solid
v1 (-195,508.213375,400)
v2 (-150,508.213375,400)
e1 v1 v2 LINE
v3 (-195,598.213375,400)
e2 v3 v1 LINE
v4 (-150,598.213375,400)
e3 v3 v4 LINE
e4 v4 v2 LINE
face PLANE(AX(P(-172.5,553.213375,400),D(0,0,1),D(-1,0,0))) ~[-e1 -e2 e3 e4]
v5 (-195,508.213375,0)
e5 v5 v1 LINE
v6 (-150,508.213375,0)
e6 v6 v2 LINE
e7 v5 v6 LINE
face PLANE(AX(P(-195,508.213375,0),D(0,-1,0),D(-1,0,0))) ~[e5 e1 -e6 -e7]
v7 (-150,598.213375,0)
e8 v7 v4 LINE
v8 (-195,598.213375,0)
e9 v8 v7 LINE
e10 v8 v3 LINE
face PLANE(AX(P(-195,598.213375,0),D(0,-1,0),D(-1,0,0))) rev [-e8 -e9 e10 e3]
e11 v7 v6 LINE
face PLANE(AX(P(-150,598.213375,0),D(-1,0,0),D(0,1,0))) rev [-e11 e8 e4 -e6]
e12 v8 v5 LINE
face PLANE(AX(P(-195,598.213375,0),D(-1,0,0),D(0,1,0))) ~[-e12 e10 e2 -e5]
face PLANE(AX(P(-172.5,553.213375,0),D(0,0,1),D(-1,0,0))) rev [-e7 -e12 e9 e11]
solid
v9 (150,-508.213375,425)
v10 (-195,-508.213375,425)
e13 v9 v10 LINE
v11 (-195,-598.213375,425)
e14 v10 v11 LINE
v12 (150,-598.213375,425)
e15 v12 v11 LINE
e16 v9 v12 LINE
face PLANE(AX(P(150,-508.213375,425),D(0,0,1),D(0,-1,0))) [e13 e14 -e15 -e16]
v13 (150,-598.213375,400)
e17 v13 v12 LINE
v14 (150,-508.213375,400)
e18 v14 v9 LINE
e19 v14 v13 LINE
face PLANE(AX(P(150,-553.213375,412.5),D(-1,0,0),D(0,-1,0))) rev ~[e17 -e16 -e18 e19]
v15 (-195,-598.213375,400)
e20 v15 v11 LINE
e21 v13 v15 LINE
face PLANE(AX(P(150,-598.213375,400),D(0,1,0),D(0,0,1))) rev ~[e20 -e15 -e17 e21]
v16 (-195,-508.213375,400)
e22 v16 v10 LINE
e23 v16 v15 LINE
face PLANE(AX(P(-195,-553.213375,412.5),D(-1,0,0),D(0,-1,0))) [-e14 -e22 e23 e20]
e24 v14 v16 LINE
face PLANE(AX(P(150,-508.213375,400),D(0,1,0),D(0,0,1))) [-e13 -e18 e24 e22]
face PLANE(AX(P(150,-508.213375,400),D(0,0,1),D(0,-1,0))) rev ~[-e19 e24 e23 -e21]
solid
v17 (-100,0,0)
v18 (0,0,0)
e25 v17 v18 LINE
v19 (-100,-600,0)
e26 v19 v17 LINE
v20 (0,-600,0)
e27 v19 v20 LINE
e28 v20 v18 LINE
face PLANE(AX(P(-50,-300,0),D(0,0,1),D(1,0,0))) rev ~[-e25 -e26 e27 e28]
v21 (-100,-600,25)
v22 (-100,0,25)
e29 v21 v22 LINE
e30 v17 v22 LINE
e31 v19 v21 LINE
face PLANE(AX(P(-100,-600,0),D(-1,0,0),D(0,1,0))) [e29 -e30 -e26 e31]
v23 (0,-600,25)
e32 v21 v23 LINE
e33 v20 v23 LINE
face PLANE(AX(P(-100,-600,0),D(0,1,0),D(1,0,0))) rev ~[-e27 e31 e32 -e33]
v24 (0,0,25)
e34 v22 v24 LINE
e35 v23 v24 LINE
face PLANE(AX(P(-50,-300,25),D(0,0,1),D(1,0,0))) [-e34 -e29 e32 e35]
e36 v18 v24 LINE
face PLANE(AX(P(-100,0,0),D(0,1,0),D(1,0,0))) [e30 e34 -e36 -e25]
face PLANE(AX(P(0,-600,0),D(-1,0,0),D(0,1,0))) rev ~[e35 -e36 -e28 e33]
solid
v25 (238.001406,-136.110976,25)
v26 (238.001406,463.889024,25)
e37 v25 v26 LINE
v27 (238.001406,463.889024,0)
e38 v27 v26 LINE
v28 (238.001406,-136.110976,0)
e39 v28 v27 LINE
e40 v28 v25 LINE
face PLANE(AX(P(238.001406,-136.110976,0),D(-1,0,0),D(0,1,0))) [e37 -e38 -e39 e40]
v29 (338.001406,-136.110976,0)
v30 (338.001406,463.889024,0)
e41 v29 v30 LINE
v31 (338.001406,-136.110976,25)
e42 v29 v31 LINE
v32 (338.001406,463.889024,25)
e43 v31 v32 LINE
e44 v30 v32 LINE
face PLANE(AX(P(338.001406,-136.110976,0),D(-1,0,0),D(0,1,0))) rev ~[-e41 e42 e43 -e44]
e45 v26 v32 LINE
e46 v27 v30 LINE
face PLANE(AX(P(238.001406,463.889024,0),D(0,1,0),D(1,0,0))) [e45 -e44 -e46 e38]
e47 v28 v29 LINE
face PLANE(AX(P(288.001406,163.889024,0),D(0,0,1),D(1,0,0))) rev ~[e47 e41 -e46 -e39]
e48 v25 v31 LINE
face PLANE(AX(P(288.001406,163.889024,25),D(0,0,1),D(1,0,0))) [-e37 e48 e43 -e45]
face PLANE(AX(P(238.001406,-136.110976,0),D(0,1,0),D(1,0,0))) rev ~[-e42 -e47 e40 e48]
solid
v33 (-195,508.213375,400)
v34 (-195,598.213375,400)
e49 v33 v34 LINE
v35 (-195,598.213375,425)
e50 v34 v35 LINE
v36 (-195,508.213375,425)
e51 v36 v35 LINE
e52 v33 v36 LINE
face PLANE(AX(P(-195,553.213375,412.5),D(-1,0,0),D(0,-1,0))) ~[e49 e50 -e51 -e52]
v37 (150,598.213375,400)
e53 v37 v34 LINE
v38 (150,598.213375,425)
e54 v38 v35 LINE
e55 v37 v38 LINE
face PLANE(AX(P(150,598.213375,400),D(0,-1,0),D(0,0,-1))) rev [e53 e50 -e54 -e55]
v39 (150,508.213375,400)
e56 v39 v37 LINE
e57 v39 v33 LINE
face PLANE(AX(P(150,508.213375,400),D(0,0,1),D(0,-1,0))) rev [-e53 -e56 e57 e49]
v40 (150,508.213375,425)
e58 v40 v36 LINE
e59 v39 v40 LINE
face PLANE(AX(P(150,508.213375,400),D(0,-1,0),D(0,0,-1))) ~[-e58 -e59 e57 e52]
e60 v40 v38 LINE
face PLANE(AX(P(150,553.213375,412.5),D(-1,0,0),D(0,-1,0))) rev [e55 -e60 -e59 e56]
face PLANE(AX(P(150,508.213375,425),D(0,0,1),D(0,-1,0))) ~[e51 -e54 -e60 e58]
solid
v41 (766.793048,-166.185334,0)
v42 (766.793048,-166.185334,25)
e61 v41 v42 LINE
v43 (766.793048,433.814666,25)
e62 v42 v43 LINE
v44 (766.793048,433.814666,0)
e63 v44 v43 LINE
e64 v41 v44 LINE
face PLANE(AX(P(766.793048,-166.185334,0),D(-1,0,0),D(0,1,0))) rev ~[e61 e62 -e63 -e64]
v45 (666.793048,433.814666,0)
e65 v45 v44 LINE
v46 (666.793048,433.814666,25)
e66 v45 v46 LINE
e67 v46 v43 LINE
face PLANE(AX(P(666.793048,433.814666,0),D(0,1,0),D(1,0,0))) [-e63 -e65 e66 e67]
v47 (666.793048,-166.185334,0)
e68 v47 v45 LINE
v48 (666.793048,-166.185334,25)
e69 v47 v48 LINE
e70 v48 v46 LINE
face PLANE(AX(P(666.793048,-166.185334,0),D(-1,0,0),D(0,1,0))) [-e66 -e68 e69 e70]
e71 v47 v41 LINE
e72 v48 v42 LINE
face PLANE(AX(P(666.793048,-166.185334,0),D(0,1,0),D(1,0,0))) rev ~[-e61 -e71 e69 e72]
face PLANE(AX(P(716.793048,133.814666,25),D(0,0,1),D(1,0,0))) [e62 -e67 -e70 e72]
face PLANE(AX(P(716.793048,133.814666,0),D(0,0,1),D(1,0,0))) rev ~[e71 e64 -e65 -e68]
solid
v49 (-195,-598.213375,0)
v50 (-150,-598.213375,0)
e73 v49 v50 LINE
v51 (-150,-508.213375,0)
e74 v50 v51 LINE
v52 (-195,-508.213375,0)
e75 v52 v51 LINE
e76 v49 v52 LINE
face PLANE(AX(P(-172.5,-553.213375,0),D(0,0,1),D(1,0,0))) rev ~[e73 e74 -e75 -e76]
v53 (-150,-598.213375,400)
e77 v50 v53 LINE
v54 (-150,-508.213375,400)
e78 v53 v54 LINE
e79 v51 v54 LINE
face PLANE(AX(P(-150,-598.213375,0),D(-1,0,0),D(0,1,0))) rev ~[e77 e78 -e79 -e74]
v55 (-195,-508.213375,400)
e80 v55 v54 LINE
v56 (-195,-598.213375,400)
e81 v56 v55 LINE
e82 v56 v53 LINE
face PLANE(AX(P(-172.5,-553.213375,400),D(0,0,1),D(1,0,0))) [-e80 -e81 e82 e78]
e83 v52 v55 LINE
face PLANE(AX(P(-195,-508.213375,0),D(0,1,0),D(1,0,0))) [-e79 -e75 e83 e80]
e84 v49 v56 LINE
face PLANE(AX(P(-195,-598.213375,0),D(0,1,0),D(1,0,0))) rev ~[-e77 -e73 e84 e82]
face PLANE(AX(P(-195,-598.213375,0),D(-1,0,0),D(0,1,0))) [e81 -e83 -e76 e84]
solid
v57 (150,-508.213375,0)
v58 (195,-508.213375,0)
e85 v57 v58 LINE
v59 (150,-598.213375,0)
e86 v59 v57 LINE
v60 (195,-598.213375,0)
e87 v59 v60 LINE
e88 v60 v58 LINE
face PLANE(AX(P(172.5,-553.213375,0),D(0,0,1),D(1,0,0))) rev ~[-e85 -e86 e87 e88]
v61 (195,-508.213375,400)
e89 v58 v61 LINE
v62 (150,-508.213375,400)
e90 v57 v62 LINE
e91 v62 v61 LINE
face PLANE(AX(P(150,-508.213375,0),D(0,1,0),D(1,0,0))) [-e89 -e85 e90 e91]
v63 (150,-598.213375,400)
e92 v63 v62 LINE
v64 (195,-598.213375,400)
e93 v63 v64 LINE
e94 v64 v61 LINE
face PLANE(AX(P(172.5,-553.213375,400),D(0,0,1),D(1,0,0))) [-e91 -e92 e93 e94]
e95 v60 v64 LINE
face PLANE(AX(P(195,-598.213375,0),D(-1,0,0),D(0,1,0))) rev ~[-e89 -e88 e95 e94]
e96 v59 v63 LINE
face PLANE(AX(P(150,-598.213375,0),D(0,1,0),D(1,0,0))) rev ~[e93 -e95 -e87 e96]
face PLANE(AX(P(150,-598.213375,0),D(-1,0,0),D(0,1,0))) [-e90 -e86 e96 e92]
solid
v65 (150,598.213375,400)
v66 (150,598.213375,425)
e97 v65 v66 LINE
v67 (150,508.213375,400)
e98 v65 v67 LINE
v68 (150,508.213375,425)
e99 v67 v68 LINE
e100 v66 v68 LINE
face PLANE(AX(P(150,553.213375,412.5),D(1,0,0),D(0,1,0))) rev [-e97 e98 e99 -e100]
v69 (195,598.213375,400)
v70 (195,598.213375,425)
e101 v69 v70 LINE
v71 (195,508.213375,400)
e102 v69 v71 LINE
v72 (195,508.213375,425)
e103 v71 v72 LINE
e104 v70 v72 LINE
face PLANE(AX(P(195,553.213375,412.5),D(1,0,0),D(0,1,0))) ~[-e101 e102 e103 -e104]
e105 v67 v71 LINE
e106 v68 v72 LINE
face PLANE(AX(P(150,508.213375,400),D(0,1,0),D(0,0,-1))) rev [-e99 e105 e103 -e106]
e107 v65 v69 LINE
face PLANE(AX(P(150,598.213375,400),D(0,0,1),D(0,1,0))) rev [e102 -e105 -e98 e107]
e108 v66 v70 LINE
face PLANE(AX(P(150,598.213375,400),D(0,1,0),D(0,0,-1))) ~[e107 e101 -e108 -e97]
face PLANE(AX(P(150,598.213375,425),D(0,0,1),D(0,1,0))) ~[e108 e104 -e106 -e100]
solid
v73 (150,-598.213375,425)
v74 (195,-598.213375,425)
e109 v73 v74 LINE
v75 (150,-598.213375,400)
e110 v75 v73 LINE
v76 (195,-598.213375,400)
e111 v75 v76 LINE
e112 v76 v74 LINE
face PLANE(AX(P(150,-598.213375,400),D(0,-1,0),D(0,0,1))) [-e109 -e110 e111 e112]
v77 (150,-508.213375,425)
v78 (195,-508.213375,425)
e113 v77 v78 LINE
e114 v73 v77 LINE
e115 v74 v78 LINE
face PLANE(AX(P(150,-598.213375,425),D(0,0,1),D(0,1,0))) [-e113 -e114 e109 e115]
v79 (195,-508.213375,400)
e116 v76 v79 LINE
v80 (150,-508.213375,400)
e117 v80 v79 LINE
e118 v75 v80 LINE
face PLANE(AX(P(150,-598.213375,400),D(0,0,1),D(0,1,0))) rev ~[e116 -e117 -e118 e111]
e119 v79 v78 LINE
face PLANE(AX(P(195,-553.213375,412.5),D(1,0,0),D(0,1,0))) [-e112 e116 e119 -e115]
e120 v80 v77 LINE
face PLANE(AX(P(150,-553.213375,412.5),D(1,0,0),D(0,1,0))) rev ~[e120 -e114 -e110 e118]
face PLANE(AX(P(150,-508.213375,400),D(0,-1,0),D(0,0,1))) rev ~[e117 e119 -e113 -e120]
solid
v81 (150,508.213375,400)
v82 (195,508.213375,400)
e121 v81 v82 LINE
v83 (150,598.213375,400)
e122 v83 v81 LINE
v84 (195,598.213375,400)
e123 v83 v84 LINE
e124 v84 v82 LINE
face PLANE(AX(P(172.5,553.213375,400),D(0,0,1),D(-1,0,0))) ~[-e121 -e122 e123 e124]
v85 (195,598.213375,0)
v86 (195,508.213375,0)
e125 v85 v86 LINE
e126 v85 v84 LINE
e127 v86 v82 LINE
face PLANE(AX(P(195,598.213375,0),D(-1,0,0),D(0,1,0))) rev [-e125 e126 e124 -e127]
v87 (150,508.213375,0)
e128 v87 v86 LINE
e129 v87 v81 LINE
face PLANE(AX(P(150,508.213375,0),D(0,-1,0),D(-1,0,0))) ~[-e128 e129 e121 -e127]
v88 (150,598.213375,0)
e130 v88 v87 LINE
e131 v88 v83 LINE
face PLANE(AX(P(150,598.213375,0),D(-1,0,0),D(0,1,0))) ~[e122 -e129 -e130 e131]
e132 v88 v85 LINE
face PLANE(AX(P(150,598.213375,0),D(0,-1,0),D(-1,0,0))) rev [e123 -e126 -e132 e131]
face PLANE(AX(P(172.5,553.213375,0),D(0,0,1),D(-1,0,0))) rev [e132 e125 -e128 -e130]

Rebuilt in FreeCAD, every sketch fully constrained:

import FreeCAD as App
import Part
import Sketcher

V = App.Vector

doc = App.newDocument("Part")
body = doc.addObject("PartDesign::Body", "Body")
body.AllowCompound = True

sketch1 = body.newObject("Sketcher::SketchObject", "Sketch")
sketch1.AttachmentSupport = (doc.getObject("XY_Plane"), [""])
sketch1.MapMode = "FlatFace"
sketch1.addGeometry(Part.LineSegment(V(-195, -508, 0), V(-195, -598, 0)), False)
sketch1.addGeometry(Part.LineSegment(V(-195, -598, 0), V(-150, -598, 0)), False)
sketch1.addGeometry(Part.LineSegment(V(-150, -598, 0), V(-150, -508, 0)), False)
sketch1.addGeometry(Part.LineSegment(V(-150, -508, 0), V(-195, -508, 0)), False)
sketch1.addGeometry(Part.LineSegment(V(150, -508, 0), V(150, -598, 0)), False)
sketch1.addGeometry(Part.LineSegment(V(150, -598, 0), V(195, -598, 0)), False)
sketch1.addGeometry(Part.LineSegment(V(195, -598, 0), V(195, -508, 0)), False)
sketch1.addGeometry(Part.LineSegment(V(195, -508, 0), V(150, -508, 0)), False)
sketch1.addConstraint(Sketcher.Constraint("Coincident", 0, 2, 1, 1))
sketch1.addConstraint(Sketcher.Constraint("Coincident", 1, 2, 2, 1))
sketch1.addConstraint(Sketcher.Constraint("Coincident", 2, 2, 3, 1))
sketch1.addConstraint(Sketcher.Constraint("Coincident", 3, 2, 0, 1))
sketch1.addConstraint(Sketcher.Constraint("Coincident", 4, 2, 5, 1))
sketch1.addConstraint(Sketcher.Constraint("Coincident", 5, 2, 6, 1))
sketch1.addConstraint(Sketcher.Constraint("Coincident", 6, 2, 7, 1))
sketch1.addConstraint(Sketcher.Constraint("Coincident", 7, 2, 4, 1))
sketch1.addConstraint(Sketcher.Constraint("Vertical", 0))
sketch1.addConstraint(Sketcher.Constraint("Horizontal", 1))
sketch1.addConstraint(Sketcher.Constraint("Vertical", 2))
sketch1.addConstraint(Sketcher.Constraint("Horizontal", 3))
sketch1.addConstraint(Sketcher.Constraint("Vertical", 4))
sketch1.addConstraint(Sketcher.Constraint("Horizontal", 5))
sketch1.addConstraint(Sketcher.Constraint("Vertical", 6))
sketch1.addConstraint(Sketcher.Constraint("Horizontal", 7))
sketch1.addConstraint(Sketcher.Constraint("Symmetric", 1, 2, 4, 2, -2))
sketch1.addConstraint(Sketcher.Constraint("Symmetric", 3, 2, 6, 2, -2))
sketch1.addConstraint(Sketcher.Constraint("DistanceX", 1, 1, 1, 2, 45.0))
sketch1.addConstraint(Sketcher.Constraint("DistanceY", 0, 2, 0, 1, 90.0))
sketch1.addConstraint(Sketcher.Constraint("DistanceX", 0, 2, -1, 1, 195.0))
sketch1.addConstraint(Sketcher.Constraint("DistanceY", 0, 2, -1, 1, 598.213375))
pad1 = body.newObject("PartDesign::Pad", "Pad")
pad1.Profile = sketch1
pad1.Length = 400
body2 = doc.addObject("PartDesign::Body", "Body001")

sketch2 = body2.newObject("Sketcher::SketchObject", "Sketch001")
sketch2.AttachmentSupport = (doc.getObject("YZ_Plane001"), [""])
sketch2.MapMode = "FlatFace"
sketch2.AttachmentOffset = App.Placement(V(0, 0, 150), App.Rotation())
sketch2.addGeometry(Part.LineSegment(V(-508, 425, 0), V(-508, 400, 0)), False)
sketch2.addGeometry(Part.LineSegment(V(-508, 400, 0), V(-598, 400, 0)), False)
sketch2.addGeometry(Part.LineSegment(V(-598, 400, 0), V(-598, 425, 0)), False)
sketch2.addGeometry(Part.LineSegment(V(-598, 425, 0), V(-508, 425, 0)), False)
sketch2.addConstraint(Sketcher.Constraint("Coincident", 0, 2, 1, 1))
sketch2.addConstraint(Sketcher.Constraint("Coincident", 1, 2, 2, 1))
sketch2.addConstraint(Sketcher.Constraint("Coincident", 2, 2, 3, 1))
sketch2.addConstraint(Sketcher.Constraint("Coincident", 3, 2, 0, 1))
sketch2.addConstraint(Sketcher.Constraint("Vertical", 0))
sketch2.addConstraint(Sketcher.Constraint("Horizontal", 1))
sketch2.addConstraint(Sketcher.Constraint("Vertical", 2))
sketch2.addConstraint(Sketcher.Constraint("Horizontal", 3))
sketch2.addConstraint(Sketcher.Constraint("DistanceX", 1, 2, 1, 1, 90.0))
sketch2.addConstraint(Sketcher.Constraint("DistanceY", 0, 2, 0, 1, 25.0))
sketch2.addConstraint(Sketcher.Constraint("DistanceY", -1, 1, 0, 2, 400.0))
sketch2.addConstraint(Sketcher.Constraint("DistanceX", 0, 2, -1, 1, 508.213375))
pad2 = body2.newObject("PartDesign::Pad", "Pad001")
pad2.Profile = sketch2
pad2.Length = 345
pad2.Reversed = True
body3 = doc.addObject("PartDesign::Body", "Body002")

sketch3 = body3.newObject("Sketcher::SketchObject", "Sketch002")
sketch3.AttachmentSupport = (doc.getObject("YZ_Plane002"), [""])
sketch3.MapMode = "FlatFace"
sketch3.AttachmentOffset = App.Placement(V(0, 0, 150), App.Rotation())
sketch3.addGeometry(Part.LineSegment(V(-598, 425, 0), V(-598, 400, 0)), False)
sketch3.addGeometry(Part.LineSegment(V(-598, 400, 0), V(-508, 400, 0)), False)
sketch3.addGeometry(Part.LineSegment(V(-508, 400, 0), V(-508, 425, 0)), False)
sketch3.addGeometry(Part.LineSegment(V(-508, 425, 0), V(-598, 425, 0)), False)
sketch3.addConstraint(Sketcher.Constraint("Coincident", 0, 2, 1, 1))
sketch3.addConstraint(Sketcher.Constraint("Coincident", 1, 2, 2, 1))
sketch3.addConstraint(Sketcher.Constraint("Coincident", 2, 2, 3, 1))
sketch3.addConstraint(Sketcher.Constraint("Coincident", 3, 2, 0, 1))
sketch3.addConstraint(Sketcher.Constraint("Vertical", 0))
sketch3.addConstraint(Sketcher.Constraint("Horizontal", 1))
sketch3.addConstraint(Sketcher.Constraint("Vertical", 2))
sketch3.addConstraint(Sketcher.Constraint("Horizontal", 3))
sketch3.addConstraint(Sketcher.Constraint("DistanceX", 1, 1, 1, 2, 90.0))
sketch3.addConstraint(Sketcher.Constraint("DistanceY", 0, 2, 0, 1, 25.0))
sketch3.addConstraint(Sketcher.Constraint("DistanceY", -1, 1, 0, 2, 400.0))
sketch3.addConstraint(Sketcher.Constraint("DistanceX", 0, 2, -1, 1, 598.213375))
pad3 = body3.newObject("PartDesign::Pad", "Pad002")
pad3.Profile = sketch3
pad3.Length = 45
body4 = doc.addObject("PartDesign::Body", "Body003")
body4.AllowCompound = True
doc.recompute()

mirroring = doc.addObject("Part::Mirroring", "Mirroring")
mirroring.Source = body
mirroring.Base = V(0, 0, 0)
mirroring.Normal = V(0, -1, 0)
body4.BaseFeature = mirroring
doc.recompute()
body5 = doc.addObject("PartDesign::Body", "Body004")
doc.recompute()

mirroring2 = doc.addObject("Part::Mirroring", "Mirroring001")
mirroring2.Source = body2
mirroring2.Base = V(0, 0, 0)
mirroring2.Normal = V(0, -1, 0)
body5.BaseFeature = mirroring2
doc.recompute()
body6 = doc.addObject("PartDesign::Body", "Body005")
doc.recompute()

mirroring3 = doc.addObject("Part::Mirroring", "Mirroring002")
mirroring3.Source = body3
mirroring3.Base = V(0, 0, 0)
mirroring3.Normal = V(0, -1, 0)
body6.BaseFeature = mirroring3
doc.recompute()
body7 = doc.addObject("PartDesign::Body", "Body006")
body7.AllowCompound = True

sketch4 = body7.newObject("Sketcher::SketchObject", "Sketch003")
sketch4.AttachmentSupport = (doc.getObject("XY_Plane006"), [""])
sketch4.MapMode = "FlatFace"
sketch4.addGeometry(Part.LineSegment(V(667, 434, 0), V(667, -166, 0)), False)
sketch4.addGeometry(Part.LineSegment(V(667, -166, 0), V(767, -166, 0)), False)
sketch4.addGeometry(Part.LineSegment(V(767, -166, 0), V(767, 434, 0)), False)
sketch4.addGeometry(Part.LineSegment(V(767, 434, 0), V(667, 434, 0)), False)
sketch4.addGeometry(Part.LineSegment(V(238, 464, 0), V(238, -136, 0)), False)
sketch4.addGeometry(Part.LineSegment(V(238, -136, 0), V(338, -136, 0)), False)
sketch4.addGeometry(Part.LineSegment(V(338, -136, 0), V(338, 464, 0)), False)
sketch4.addGeometry(Part.LineSegment(V(338, 464, 0), V(238, 464, 0)), False)
sketch4.addGeometry(Part.LineSegment(V(-100, 0, 0), V(-100, -600, 0)), False)
sketch4.addGeometry(Part.LineSegment(V(-100, -600, 0), V(0, -600, 0)), False)
sketch4.addGeometry(Part.LineSegment(V(0, -600, 0), V(0, 0, 0)), False)
sketch4.addGeometry(Part.LineSegment(V(0, 0, 0), V(-100, 0, 0)), False)
sketch4.addConstraint(Sketcher.Constraint("Coincident", 0, 2, 1, 1))
sketch4.addConstraint(Sketcher.Constraint("Coincident", 1, 2, 2, 1))
sketch4.addConstraint(Sketcher.Constraint("Coincident", 2, 2, 3, 1))
sketch4.addConstraint(Sketcher.Constraint("Coincident", 3, 2, 0, 1))
sketch4.addConstraint(Sketcher.Constraint("Coincident", 4, 2, 5, 1))
sketch4.addConstraint(Sketcher.Constraint("Coincident", 5, 2, 6, 1))
sketch4.addConstraint(Sketcher.Constraint("Coincident", 6, 2, 7, 1))
sketch4.addConstraint(Sketcher.Constraint("Coincident", 7, 2, 4, 1))
sketch4.addConstraint(Sketcher.Constraint("Coincident", 8, 2, 9, 1))
sketch4.addConstraint(Sketcher.Constraint("Coincident", 9, 2, 10, 1))
sketch4.addConstraint(Sketcher.Constraint("Coincident", 10, 2, 11, 1))
sketch4.addConstraint(Sketcher.Constraint("Coincident", 11, 2, 8, 1))
sketch4.addConstraint(Sketcher.Constraint("Vertical", 0))
sketch4.addConstraint(Sketcher.Constraint("Horizontal", 1))
sketch4.addConstraint(Sketcher.Constraint("Vertical", 2))
sketch4.addConstraint(Sketcher.Constraint("Horizontal", 3))
sketch4.addConstraint(Sketcher.Constraint("Vertical", 4))
sketch4.addConstraint(Sketcher.Constraint("Horizontal", 5))
sketch4.addConstraint(Sketcher.Constraint("Vertical", 6))
sketch4.addConstraint(Sketcher.Constraint("Horizontal", 7))
sketch4.addConstraint(Sketcher.Constraint("Vertical", 8))
sketch4.addConstraint(Sketcher.Constraint("Horizontal", 9))
sketch4.addConstraint(Sketcher.Constraint("Vertical", 10))
sketch4.addConstraint(Sketcher.Constraint("Horizontal", 11))
sketch4.addConstraint(Sketcher.Constraint("Coincident", 10, 2, -1, 1))
sketch4.addConstraint(Sketcher.Constraint("Equal", 3, 5))
sketch4.addConstraint(Sketcher.Constraint("Equal", 7, 9))
sketch4.addConstraint(Sketcher.Constraint("Equal", 2, 4))
sketch4.addConstraint(Sketcher.Constraint("Equal", 6, 8))
sketch4.addConstraint(Sketcher.Constraint("DistanceX", 1, 1, 1, 2, 100.0))
sketch4.addConstraint(Sketcher.Constraint("DistanceY", 0, 2, 0, 1, 600.0))
sketch4.addConstraint(Sketcher.Constraint("DistanceX", -1, 1, 0, 2, 666.793048))
sketch4.addConstraint(Sketcher.Constraint("DistanceY", 0, 2, 4, 2, 30.074358))
sketch4.addConstraint(Sketcher.Constraint("DistanceX", 4, 2, 1, 2, 528.791642))
sketch4.addConstraint(Sketcher.Constraint("DistanceY", 0, 2, -1, 1, 166.185334))
pad4 = body7.newObject("PartDesign::Pad", "Pad003")
pad4.Profile = sketch4
pad4.Length = 25
mirroring.Visibility = False
mirroring2.Visibility = False
mirroring3.Visibility = False

doc.recompute()
